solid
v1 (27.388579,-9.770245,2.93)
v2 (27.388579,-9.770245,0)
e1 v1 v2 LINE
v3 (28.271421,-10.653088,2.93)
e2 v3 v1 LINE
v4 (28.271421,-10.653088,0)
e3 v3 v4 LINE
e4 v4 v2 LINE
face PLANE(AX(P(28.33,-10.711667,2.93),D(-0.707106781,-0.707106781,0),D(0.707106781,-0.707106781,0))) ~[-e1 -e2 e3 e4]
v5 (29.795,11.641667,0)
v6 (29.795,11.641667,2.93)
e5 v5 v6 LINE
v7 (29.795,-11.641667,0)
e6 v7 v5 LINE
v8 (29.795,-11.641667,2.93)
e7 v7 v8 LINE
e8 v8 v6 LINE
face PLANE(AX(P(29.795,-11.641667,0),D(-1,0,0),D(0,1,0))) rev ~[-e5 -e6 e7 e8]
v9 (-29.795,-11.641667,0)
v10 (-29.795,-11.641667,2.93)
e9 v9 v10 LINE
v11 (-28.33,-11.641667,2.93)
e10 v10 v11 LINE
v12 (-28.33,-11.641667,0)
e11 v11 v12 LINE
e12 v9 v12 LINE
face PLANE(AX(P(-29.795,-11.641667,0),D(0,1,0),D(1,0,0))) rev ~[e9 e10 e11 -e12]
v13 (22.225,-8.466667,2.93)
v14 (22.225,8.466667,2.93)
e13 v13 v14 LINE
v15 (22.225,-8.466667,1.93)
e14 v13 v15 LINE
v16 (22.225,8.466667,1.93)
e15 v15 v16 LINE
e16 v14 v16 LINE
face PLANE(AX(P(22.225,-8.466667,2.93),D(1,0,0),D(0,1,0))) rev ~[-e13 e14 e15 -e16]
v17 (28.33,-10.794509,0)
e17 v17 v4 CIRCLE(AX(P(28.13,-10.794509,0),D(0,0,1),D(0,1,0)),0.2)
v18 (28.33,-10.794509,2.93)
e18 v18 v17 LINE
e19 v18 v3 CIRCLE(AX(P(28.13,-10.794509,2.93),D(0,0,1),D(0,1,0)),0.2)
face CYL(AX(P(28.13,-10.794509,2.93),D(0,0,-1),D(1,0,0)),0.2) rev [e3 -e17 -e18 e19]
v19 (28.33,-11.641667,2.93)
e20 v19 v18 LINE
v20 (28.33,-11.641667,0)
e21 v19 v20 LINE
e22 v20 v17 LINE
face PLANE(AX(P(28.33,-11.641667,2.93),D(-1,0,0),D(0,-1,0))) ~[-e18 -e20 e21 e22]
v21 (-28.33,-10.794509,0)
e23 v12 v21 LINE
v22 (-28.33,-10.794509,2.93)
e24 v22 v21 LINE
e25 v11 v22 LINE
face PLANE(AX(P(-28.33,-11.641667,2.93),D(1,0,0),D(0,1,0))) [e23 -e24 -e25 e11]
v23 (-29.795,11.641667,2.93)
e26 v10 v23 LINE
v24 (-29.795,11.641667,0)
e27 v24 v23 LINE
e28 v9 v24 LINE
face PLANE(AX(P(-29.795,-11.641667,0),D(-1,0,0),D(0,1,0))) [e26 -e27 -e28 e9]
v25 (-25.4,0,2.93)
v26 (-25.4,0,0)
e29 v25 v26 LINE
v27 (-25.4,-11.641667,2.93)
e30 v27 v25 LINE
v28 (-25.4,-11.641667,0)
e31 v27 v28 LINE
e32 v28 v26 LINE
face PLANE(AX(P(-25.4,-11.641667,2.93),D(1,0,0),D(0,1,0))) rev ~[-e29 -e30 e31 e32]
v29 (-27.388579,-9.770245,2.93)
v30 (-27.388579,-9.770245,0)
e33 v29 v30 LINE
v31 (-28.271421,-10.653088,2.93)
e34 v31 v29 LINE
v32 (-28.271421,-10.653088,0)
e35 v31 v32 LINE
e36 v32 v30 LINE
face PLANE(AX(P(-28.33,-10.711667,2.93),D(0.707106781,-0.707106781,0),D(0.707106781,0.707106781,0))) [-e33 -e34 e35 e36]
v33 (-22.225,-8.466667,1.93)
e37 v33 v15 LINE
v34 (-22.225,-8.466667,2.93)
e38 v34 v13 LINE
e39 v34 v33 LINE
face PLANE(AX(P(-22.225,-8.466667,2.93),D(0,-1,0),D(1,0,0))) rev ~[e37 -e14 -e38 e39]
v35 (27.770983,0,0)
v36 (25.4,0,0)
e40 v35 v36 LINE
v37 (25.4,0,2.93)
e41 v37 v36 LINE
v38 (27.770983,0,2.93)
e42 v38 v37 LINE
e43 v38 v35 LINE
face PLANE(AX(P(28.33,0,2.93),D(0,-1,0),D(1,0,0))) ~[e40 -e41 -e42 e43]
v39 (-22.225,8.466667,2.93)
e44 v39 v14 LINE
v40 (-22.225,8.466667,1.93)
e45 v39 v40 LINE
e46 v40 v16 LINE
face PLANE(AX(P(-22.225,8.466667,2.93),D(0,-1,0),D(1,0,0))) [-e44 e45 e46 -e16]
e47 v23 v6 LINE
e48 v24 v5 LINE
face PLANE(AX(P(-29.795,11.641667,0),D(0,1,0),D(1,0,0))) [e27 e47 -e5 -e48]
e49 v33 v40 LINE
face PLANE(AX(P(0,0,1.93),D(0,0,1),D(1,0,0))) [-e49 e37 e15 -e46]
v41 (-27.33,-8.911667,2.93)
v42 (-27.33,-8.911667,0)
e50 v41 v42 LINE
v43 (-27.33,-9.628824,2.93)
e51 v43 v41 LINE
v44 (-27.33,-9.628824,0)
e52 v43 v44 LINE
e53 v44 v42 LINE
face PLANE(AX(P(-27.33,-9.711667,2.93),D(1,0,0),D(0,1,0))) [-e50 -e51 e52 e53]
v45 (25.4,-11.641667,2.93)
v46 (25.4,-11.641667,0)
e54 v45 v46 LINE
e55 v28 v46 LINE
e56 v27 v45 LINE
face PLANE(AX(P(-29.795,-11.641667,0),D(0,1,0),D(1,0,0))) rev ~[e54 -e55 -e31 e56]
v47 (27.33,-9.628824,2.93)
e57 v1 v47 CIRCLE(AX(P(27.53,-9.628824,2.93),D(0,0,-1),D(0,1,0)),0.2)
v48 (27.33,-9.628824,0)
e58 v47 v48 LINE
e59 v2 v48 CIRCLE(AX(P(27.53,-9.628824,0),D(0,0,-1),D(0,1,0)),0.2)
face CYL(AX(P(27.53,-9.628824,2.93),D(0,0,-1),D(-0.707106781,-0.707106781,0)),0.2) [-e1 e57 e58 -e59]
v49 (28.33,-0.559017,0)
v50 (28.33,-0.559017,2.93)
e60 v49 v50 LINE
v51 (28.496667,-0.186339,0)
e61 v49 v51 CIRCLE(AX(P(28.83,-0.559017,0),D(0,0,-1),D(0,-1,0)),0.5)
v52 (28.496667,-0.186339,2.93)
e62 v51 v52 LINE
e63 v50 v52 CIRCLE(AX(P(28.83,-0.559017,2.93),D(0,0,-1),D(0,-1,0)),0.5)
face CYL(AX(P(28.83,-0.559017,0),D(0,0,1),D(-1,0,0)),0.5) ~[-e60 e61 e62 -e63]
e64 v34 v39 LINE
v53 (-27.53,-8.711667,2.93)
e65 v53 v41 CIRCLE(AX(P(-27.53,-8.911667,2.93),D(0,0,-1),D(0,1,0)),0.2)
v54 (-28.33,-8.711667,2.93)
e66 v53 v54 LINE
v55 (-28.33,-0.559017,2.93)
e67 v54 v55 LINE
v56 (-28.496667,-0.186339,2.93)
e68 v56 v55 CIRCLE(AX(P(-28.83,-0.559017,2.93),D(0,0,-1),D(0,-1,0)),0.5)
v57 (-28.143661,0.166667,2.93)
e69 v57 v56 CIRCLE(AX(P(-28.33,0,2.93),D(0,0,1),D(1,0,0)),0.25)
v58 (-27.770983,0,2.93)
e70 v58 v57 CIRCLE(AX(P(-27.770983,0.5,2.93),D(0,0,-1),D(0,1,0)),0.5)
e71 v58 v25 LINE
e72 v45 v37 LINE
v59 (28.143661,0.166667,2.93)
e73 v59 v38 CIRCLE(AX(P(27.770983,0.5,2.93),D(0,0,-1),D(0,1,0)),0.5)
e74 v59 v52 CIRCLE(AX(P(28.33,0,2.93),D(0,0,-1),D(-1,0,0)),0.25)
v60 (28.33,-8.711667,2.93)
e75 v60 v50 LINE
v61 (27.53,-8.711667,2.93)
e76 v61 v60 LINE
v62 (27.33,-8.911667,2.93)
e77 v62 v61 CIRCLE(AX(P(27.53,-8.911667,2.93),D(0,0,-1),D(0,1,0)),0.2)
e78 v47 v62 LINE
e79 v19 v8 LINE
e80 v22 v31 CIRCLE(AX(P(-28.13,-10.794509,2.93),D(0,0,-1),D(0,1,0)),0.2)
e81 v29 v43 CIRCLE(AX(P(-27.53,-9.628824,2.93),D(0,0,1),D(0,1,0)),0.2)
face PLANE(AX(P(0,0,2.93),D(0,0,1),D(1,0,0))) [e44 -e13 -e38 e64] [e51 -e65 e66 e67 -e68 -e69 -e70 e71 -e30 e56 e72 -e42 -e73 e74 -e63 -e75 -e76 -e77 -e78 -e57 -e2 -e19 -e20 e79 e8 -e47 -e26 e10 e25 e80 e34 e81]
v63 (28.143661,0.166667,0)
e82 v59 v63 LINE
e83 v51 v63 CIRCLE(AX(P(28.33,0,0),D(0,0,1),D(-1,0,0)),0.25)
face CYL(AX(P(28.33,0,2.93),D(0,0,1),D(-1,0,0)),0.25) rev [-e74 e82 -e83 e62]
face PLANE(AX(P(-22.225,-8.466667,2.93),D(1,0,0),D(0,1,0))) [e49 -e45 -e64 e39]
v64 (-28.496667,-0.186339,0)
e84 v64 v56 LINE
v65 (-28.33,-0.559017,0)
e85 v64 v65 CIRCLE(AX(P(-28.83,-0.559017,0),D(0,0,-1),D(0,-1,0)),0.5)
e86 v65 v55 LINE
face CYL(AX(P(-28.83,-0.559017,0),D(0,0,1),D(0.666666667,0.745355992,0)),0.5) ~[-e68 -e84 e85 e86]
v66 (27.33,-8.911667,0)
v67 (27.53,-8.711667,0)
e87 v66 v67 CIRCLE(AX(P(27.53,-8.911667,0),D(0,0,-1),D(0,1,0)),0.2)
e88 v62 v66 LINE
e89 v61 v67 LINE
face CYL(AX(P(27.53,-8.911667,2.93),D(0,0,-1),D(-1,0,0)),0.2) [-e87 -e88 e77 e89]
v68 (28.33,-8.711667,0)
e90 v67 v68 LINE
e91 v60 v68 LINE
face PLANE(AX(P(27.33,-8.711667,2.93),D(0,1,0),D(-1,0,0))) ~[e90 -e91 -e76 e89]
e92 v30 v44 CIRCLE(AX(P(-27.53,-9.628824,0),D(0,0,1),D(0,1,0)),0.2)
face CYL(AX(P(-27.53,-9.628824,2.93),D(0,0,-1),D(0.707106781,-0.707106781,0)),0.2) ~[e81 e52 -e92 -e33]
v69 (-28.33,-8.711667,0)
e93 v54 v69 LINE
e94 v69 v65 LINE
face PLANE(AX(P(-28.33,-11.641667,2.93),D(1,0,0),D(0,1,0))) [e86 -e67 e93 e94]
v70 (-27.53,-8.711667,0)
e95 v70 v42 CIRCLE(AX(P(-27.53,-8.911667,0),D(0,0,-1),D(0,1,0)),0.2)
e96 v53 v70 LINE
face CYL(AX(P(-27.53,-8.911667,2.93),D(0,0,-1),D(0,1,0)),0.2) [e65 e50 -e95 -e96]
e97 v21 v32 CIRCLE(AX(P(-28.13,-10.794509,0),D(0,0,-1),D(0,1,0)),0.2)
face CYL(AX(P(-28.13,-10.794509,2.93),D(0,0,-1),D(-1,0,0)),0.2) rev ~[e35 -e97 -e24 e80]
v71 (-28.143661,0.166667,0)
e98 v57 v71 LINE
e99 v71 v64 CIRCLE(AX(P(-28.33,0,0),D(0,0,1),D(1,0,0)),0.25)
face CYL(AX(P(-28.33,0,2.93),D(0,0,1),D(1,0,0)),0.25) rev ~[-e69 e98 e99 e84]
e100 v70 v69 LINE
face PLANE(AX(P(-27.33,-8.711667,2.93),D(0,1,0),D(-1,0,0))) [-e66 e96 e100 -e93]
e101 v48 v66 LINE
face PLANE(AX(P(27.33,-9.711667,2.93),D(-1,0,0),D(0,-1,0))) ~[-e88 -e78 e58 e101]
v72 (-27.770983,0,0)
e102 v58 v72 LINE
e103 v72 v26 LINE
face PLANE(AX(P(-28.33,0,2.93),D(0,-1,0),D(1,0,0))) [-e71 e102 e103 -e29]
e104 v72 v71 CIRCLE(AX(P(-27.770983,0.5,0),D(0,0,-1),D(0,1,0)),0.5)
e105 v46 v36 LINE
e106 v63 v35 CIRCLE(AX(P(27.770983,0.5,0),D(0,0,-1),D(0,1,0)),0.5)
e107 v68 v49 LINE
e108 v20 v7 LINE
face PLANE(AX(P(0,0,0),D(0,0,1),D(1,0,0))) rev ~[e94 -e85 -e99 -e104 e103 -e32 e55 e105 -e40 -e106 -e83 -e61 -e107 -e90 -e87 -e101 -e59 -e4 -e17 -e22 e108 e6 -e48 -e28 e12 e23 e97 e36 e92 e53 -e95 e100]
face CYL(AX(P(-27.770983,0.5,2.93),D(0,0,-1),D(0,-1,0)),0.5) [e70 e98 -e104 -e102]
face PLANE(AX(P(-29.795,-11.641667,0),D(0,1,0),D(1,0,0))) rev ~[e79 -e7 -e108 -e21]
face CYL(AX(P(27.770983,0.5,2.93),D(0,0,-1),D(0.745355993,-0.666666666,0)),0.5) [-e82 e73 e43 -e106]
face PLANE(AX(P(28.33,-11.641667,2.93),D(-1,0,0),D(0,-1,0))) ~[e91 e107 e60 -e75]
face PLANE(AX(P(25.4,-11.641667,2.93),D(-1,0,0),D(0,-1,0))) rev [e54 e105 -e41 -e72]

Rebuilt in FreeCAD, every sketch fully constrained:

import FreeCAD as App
import Part
import Sketcher
Q = App.Units.Quantity


def edges_at(feature, points):
    """Names of the edges that pass closest to the given points."""
    edges = feature.Shape.Edges
    near = lambda p: min(range(len(edges)), key=lambda i: edges[i].distToShape(Part.Vertex(*p))[0])
    return sorted({f"Edge{near(p) + 1}" for p in points})

doc = App.newDocument("Part")
body = doc.addObject("PartDesign::Body", "Body")

# Sketch on XY plane
sketch1 = body.newObject("Sketcher::SketchObject", "Sketch")
sketch1.AttachmentSupport = (doc.getObject("XY_Plane"), [""])
sketch1.MapMode = "FlatFace"
sketch1.addGeometry([
    Part.LineSegment(App.Vector(-30, 12, 0), App.Vector(-30, -12, 0)),
    Part.LineSegment(App.Vector(-30, -12, 0), App.Vector(30, -12, 0)),
    Part.LineSegment(App.Vector(30, -12, 0), App.Vector(30, 12, 0)),
    Part.LineSegment(App.Vector(30, 12, 0), App.Vector(-30, 12, 0)),
], False)
sketch1.addConstraint([
    Sketcher.Constraint("Coincident", 0, 2, 1, 1),
    Sketcher.Constraint("Coincident", 1, 2, 2, 1),
    Sketcher.Constraint("Coincident", 2, 2, 3, 1),
    Sketcher.Constraint("Coincident", 3, 2, 0, 1),
    Sketcher.Constraint("Vertical", 0),
    Sketcher.Constraint("Horizontal", 1),
    Sketcher.Constraint("Vertical", 2),
    Sketcher.Constraint("Horizontal", 3),
    Sketcher.Constraint("Symmetric", 0, 2, 2, 2, -1, 1),
    Sketcher.Constraint("DistanceX", 1, 1, 1, 2, Q("59.59 mm")),
    Sketcher.Constraint("DistanceY", 0, 2, 0, 1, Q("23.283333 mm")),
])
pad1 = body.newObject("PartDesign::Pad", "Pad")
pad1.Profile = sketch1
pad1.Length = 2.93

# Sketch on XY plane
sketch2 = body.newObject("Sketcher::SketchObject", "Sketch001")
sketch2.AttachmentSupport = (doc.getObject("XY_Plane"), [""])
sketch2.MapMode = "FlatFace"
sketch2.AttachmentOffset = App.Placement(App.Vector(0, 0, 2.93), App.Rotation())
sketch2.addGeometry([
    Part.LineSegment(App.Vector(-28.3, 0, 0), App.Vector(-28.3, -11.6, 0)),
    Part.LineSegment(App.Vector(-28.3, -11.6, 0), App.Vector(-25.4, -11.6, 0)),
    Part.LineSegment(App.Vector(-25.4, -11.6, 0), App.Vector(-25.4, 0, 0)),
    Part.LineSegment(App.Vector(-25.4, 0, 0), App.Vector(-28.3, 0, 0)),
], False)
sketch2.addConstraint([
    Sketcher.Constraint("Coincident", 0, 2, 1, 1),
    Sketcher.Constraint("Coincident", 1, 2, 2, 1),
    Sketcher.Constraint("Coincident", 2, 2, 3, 1),
    Sketcher.Constraint("Coincident", 3, 2, 0, 1),
    Sketcher.Constraint("Vertical", 0),
    Sketcher.Constraint("Horizontal", 1),
    Sketcher.Constraint("Vertical", 2),
    Sketcher.Constraint("Horizontal", 3),
    Sketcher.Constraint("PointOnObject", 2, 2, -1),
    Sketcher.Constraint("DistanceX", 1, 1, 1, 2, Q("2.93 mm")),
    Sketcher.Constraint("DistanceX", 1, 2, -1, 1, Q("25.4 mm")),
    Sketcher.Constraint("DistanceY", 0, 2, 0, 1, Q("11.641667 mm")),
])
pocket1 = body.newObject("PartDesign::Pocket", "Pocket")
pocket1.Profile = sketch2
pocket1.Type = "ThroughAll"

# Sketch on XY plane
sketch3 = body.newObject("Sketcher::SketchObject", "Sketch002")
sketch3.AttachmentSupport = (doc.getObject("XY_Plane"), [""])
sketch3.MapMode = "FlatFace"
sketch3.AttachmentOffset = App.Placement(App.Vector(0, 0, 2.93), App.Rotation())
sketch3.addGeometry([
    Part.LineSegment(App.Vector(-27.3, -8.7, 0), App.Vector(-28.3, -8.7, 0)),
    Part.LineSegment(App.Vector(-28.3, -8.7, 0), App.Vector(-28.3, -10.7, 0)),
    Part.LineSegment(App.Vector(-28.3, -10.7, 0), App.Vector(-27.3, -9.7, 0)),
    Part.LineSegment(App.Vector(-27.3, -9.7, 0), App.Vector(-27.3, -8.7, 0)),
], False)
sketch3.addConstraint([
    Sketcher.Constraint("Coincident", 0, 2, 1, 1),
    Sketcher.Constraint("Coincident", 1, 2, 2, 1),
    Sketcher.Constraint("Coincident", 2, 2, 3, 1),
    Sketcher.Constraint("Coincident", 3, 2, 0, 1),
    Sketcher.Constraint("Horizontal", 0),
    Sketcher.Constraint("Vertical", 1),
    Sketcher.Constraint("Vertical", 3),
    Sketcher.Constraint("Equal", 0, 3),
    Sketcher.Constraint("DistanceX", 0, 2, 0, 1, Q("1 mm")),
    Sketcher.Constraint("DistanceY", 1, 2, 1, 1, Q("2 mm")),
    Sketcher.Constraint("DistanceX", 0, 2, -1, 1, Q("28.33 mm")),
    Sketcher.Constraint("DistanceY", 0, 2, -1, 1, Q("8.711667 mm")),
])
pad2 = body.newObject("PartDesign::Pad", "Pad001")
pad2.Profile = sketch3
pad2.Length = 2.93
pad2.Reversed = True
doc.recompute()

fillet = body.newObject("PartDesign::Fillet", "Fillet")
fillet.Base = (pad2, edges_at(pad2, [(-27.33, -8.712, 1.465), (-28.33, -10.712, 1.465), (-27.33, -9.712, 1.465)]))
fillet.Radius = 0.2

# Sketch on XY plane
sketch4 = body.newObject("Sketcher::SketchObject", "Sketch003")
sketch4.AttachmentSupport = (doc.getObject("XY_Plane"), [""])
sketch4.MapMode = "FlatFace"
sketch4.AttachmentOffset = App.Placement(App.Vector(0, 0, 2.93), App.Rotation())
sketch4.addGeometry(Part.Circle(App.Vector(-28.33, 0, 0), App.Vector(0, 0, 1), 0.25), False)
sketch4.addConstraint([
    Sketcher.Constraint("PointOnObject", 0, 3, -1),
    Sketcher.Constraint("Diameter", 0, Q("0.5 mm")),
    Sketcher.Constraint("DistanceX", 0, 3, -1, 1, Q("28.33 mm")),
])
pocket2 = body.newObject("PartDesign::Pocket", "Pocket001")
pocket2.Profile = sketch4
pocket2.Type = "ThroughAll"
doc.recompute()

fillet2 = body.newObject("PartDesign::Fillet", "Fillet001")
fillet2.Base = (pocket2, edges_at(pocket2, [(-28.08, 0, 1.465), (-28.33, -0.25, 1.465)]))
fillet2.Radius = 0.5
doc.recompute()

mirrored = body.newObject("PartDesign::Mirrored", "Mirrored")
mirrored.Originals = [pocket1, pad2, pocket2]
mirrored.MirrorPlane = (doc.getObject("YZ_Plane"), [""])
body.Tip = mirrored
doc.recompute()

fillet3 = body.newObject("PartDesign::Fillet", "Fillet002")
fillet3.Base = (mirrored, edges_at(mirrored, [(27.33, -8.712, 1.465), (28.33, -10.712, 1.465), (27.33, -9.712, 1.465)]))
fillet3.Radius = 0.2
doc.recompute()

fillet4 = body.newObject("PartDesign::Fillet", "Fillet003")
fillet4.Base = (fillet3, edges_at(fillet3, [(28.08, 0, 1.465), (28.33, -0.25, 1.465)]))
fillet4.Radius = 0.5

# Sketch on XY plane
sketch5 = body.newObject("Sketcher::SketchObject", "Sketch004")
sketch5.AttachmentSupport = (doc.getObject("XY_Plane"), [""])
sketch5.MapMode = "FlatFace"
sketch5.AttachmentOffset = App.Placement(App.Vector(0, 0, 2.93), App.Rotation())
sketch5.addGeometry([
    Part.LineSegment(App.Vector(-22, 8, 0), App.Vector(-22, -8, 0)),
    Part.LineSegment(App.Vector(-22, -8, 0), App.Vector(22, -8, 0)),
    Part.LineSegment(App.Vector(22, -8, 0), App.Vector(22, 8, 0)),
    Part.LineSegment(App.Vector(22, 8, 0), App.Vector(-22, 8, 0)),
], False)
sketch5.addConstraint([
    Sketcher.Constraint("Coincident", 0, 2, 1, 1),
    Sketcher.Constraint("Coincident", 1, 2, 2, 1),
    Sketcher.Constraint("Coincident", 2, 2, 3, 1),
    Sketcher.Constraint("Coincident", 3, 2, 0, 1),
    Sketcher.Constraint("Vertical", 0),
    Sketcher.Constraint("Horizontal", 1),
    Sketcher.Constraint("Vertical", 2),
    Sketcher.Constraint("Horizontal", 3),
    Sketcher.Constraint("Symmetric", 0, 2, 2, 2, -1, 1),
    Sketcher.Constraint("DistanceX", 1, 1, 1, 2, Q("44.45 mm")),
    Sketcher.Constraint("DistanceY", 0, 2, 0, 1, Q("16.933333 mm")),
])
pocket3 = body.newObject("PartDesign::Pocket", "Pocket002")
pocket3.Profile = sketch5
pocket3.Length = 1

doc.recompute()
